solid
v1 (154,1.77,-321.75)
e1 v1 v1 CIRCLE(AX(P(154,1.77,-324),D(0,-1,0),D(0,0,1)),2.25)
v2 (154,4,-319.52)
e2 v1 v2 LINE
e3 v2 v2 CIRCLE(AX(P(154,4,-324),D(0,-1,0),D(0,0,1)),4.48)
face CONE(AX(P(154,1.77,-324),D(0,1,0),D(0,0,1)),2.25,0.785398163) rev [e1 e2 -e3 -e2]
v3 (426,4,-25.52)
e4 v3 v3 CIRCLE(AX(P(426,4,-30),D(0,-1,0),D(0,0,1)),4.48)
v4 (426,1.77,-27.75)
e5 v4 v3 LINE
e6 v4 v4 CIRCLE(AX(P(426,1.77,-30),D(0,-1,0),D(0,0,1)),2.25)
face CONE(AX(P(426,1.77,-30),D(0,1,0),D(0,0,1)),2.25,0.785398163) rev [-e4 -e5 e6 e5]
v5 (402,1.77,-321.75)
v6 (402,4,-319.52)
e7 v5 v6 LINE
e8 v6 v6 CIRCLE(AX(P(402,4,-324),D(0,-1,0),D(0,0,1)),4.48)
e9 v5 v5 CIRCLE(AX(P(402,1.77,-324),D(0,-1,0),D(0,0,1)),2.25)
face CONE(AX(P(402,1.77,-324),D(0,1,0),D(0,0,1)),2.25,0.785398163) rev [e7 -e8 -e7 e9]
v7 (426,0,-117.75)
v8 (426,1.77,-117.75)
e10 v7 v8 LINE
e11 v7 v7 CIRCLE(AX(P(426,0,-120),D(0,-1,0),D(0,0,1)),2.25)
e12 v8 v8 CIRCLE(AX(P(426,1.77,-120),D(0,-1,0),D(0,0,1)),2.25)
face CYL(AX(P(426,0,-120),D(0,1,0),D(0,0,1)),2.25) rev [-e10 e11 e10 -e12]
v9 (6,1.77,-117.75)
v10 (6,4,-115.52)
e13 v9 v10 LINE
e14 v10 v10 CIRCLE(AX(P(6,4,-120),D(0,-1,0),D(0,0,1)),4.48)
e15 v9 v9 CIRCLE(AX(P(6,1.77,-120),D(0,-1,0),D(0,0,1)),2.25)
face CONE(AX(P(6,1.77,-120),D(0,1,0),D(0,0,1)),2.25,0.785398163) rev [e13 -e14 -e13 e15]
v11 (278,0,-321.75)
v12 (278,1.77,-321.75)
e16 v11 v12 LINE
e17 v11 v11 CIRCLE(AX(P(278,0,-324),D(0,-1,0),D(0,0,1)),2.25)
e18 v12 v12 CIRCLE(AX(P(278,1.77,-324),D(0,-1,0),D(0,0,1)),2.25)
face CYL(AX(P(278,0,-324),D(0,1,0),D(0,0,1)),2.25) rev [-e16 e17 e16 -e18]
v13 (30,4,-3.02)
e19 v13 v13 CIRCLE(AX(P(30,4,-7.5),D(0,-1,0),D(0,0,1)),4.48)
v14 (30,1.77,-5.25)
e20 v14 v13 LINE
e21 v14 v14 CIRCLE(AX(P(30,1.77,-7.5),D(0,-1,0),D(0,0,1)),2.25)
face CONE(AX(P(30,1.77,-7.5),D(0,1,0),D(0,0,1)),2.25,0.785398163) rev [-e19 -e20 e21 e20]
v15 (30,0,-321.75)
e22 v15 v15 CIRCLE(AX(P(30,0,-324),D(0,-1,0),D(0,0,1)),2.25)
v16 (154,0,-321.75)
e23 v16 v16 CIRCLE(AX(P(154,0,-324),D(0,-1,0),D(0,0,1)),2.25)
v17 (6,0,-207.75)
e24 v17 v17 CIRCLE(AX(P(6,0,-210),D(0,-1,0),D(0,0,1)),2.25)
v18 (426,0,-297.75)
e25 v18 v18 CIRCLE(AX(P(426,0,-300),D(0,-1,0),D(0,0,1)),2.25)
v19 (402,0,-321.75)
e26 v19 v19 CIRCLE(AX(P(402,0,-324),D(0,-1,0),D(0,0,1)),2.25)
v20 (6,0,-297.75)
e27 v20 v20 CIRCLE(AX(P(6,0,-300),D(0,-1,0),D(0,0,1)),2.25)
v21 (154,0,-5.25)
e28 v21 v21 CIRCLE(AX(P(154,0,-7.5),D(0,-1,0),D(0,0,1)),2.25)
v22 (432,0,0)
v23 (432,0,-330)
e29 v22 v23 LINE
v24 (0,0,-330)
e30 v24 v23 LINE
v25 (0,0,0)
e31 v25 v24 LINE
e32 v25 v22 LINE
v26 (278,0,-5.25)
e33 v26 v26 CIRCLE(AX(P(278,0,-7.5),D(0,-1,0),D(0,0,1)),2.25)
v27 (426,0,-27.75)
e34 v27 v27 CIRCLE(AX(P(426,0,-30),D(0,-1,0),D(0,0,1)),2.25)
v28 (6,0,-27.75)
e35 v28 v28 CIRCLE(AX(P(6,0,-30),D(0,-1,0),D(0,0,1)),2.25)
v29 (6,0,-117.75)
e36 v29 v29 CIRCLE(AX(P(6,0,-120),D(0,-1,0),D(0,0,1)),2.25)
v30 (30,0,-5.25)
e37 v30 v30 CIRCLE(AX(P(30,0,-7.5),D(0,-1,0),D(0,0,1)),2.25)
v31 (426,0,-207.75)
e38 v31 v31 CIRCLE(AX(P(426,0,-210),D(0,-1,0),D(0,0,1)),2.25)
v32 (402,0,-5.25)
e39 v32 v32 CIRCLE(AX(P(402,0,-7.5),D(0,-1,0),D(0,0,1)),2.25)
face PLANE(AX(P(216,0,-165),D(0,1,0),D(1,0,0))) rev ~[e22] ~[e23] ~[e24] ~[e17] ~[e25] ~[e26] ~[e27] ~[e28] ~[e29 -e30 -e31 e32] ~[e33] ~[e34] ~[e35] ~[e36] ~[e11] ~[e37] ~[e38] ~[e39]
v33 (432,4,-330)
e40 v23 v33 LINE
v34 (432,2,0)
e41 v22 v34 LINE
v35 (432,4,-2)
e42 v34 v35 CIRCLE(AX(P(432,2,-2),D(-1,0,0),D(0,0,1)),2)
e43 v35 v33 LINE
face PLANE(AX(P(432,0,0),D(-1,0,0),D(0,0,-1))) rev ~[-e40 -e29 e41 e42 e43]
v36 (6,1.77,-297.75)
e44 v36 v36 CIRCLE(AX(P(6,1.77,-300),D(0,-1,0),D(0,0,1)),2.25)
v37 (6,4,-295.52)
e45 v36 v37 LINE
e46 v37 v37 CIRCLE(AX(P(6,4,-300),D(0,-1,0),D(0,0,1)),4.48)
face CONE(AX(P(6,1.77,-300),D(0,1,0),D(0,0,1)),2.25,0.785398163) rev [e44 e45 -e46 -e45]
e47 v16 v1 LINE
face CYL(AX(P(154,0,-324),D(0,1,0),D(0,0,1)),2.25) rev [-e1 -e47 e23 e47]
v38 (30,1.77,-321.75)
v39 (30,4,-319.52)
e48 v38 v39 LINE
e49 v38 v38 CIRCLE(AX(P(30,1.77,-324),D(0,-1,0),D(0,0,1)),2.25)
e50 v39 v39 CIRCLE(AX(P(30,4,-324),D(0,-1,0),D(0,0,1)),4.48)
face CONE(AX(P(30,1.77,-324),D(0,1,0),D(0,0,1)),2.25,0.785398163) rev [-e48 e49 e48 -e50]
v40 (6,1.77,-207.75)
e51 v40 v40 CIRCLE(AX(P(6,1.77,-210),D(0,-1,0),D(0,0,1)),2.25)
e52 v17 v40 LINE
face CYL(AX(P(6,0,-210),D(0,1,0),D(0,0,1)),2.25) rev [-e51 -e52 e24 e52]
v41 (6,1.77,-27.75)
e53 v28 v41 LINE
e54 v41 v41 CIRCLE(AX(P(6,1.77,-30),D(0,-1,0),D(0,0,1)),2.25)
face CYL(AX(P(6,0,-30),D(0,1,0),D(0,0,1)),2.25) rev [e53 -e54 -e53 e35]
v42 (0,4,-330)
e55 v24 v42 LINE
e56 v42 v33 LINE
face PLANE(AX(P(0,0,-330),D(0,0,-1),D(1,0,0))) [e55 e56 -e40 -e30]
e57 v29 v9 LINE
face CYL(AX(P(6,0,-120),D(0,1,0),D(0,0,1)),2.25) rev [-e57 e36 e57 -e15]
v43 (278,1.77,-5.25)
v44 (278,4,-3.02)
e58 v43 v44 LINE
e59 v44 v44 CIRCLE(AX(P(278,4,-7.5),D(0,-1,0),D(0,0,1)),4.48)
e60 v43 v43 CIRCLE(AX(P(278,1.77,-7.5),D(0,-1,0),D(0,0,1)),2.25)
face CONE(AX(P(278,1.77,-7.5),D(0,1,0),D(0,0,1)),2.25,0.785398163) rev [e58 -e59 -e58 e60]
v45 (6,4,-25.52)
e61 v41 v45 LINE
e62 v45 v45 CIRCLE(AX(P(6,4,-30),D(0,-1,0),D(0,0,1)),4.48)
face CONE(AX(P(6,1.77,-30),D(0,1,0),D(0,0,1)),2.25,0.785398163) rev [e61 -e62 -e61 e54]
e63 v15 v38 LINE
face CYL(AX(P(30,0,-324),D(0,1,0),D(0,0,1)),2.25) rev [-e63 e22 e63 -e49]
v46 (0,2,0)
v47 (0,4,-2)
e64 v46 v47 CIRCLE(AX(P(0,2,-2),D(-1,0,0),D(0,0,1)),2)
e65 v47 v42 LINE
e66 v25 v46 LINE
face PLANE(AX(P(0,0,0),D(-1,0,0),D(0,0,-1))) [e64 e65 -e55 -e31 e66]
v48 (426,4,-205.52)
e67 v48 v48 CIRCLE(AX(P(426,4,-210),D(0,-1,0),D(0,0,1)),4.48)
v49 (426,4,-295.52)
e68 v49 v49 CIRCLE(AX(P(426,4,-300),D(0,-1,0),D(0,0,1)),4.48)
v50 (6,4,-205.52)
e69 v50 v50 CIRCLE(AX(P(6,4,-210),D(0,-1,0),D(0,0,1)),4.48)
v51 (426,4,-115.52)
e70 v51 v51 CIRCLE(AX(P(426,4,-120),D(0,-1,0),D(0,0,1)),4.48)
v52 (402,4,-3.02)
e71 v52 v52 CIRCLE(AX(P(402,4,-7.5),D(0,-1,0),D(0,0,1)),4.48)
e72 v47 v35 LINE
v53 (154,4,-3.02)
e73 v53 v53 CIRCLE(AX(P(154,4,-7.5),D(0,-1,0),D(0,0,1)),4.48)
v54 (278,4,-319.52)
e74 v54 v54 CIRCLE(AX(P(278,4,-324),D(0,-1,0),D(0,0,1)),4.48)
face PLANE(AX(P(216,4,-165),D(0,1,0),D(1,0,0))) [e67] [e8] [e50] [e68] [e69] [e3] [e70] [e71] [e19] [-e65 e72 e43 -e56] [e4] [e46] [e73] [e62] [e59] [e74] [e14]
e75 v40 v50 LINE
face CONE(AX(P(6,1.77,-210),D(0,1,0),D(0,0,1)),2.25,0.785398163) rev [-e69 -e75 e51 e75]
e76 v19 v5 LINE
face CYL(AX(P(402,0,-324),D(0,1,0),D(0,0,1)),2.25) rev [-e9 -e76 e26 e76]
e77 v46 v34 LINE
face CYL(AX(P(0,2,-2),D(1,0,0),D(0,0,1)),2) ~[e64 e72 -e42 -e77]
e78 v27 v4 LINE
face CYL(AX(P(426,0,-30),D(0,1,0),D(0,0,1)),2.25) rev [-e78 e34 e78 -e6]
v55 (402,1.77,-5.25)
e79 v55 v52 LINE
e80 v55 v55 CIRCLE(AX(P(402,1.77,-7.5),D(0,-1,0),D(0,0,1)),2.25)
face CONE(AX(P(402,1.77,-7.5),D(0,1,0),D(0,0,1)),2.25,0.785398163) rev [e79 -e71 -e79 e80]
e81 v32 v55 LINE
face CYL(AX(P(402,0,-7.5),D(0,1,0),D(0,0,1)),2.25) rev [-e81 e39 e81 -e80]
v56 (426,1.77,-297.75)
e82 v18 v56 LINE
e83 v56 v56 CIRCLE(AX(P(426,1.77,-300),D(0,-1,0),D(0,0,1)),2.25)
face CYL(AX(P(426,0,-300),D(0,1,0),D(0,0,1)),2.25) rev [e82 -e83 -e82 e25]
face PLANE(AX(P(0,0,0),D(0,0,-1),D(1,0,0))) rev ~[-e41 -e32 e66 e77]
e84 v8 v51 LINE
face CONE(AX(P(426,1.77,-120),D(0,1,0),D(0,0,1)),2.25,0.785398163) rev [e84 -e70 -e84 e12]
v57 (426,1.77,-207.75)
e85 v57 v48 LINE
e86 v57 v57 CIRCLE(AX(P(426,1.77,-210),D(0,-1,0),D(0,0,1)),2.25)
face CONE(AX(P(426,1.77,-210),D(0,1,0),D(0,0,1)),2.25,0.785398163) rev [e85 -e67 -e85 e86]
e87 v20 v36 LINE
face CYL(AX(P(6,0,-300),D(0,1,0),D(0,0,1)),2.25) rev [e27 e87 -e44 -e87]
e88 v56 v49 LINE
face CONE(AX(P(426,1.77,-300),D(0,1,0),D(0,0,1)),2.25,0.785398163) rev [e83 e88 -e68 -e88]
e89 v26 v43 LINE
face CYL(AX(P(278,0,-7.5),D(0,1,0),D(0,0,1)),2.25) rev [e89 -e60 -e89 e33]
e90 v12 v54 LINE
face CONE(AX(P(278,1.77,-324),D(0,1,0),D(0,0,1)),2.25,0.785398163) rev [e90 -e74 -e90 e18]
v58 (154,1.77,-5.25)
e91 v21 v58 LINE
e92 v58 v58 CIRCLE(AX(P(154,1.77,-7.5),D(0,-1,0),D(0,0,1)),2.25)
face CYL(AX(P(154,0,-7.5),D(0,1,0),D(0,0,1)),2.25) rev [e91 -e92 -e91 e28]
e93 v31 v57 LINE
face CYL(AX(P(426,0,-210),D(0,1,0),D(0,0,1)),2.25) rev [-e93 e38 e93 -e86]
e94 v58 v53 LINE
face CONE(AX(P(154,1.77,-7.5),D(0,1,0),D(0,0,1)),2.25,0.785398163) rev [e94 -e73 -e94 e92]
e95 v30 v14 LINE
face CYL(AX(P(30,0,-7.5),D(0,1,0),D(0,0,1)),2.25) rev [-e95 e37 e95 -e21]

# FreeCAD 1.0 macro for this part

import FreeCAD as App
import Part
import Sketcher
Q = App.Units.Quantity


def edges_at(feature, points):
    """Names of the edges that pass closest to the given points."""
    edges = feature.Shape.Edges
    near = lambda p: min(range(len(edges)), key=lambda i: edges[i].distToShape(Part.Vertex(*p))[0])
    return sorted({f"Edge{near(p) + 1}" for p in points})

doc = App.newDocument("Part")
body = doc.addObject("PartDesign::Body", "Body")

# Sketch on XZ plane
sketch1 = body.newObject("Sketcher::SketchObject", "Sketch")
sketch1.AttachmentSupport = (doc.getObject("XZ_Plane"), [""])
sketch1.MapMode = "FlatFace"
sketch1.addGeometry([
    Part.LineSegment(App.Vector(0, -330, 0), App.Vector(0, 0, 0)),
    Part.LineSegment(App.Vector(0, 0, 0), App.Vector(432, 0, 0)),
    Part.LineSegment(App.Vector(432, 0, 0), App.Vector(432, -330, 0)),
    Part.LineSegment(App.Vector(432, -330, 0), App.Vector(0, -330, 0)),
], False)
sketch1.addConstraint([
    Sketcher.Constraint("Coincident", 0, 2, 1, 1),
    Sketcher.Constraint("Coincident", 1, 2, 2, 1),
    Sketcher.Constraint("Coincident", 2, 2, 3, 1),
    Sketcher.Constraint("Coincident", 3, 2, 0, 1),
    Sketcher.Constraint("Vertical", 0),
    Sketcher.Constraint("Horizontal", 1),
    Sketcher.Constraint("Vertical", 2),
    Sketcher.Constraint("Horizontal", 3),
    Sketcher.Constraint("Coincident", 0, 2, -1, 1),
    Sketcher.Constraint("DistanceX", 1, 1, 1, 2, 432.0),
    Sketcher.Constraint("DistanceY", 0, 1, 0, 2, 330.0),
])
pad1 = body.newObject("PartDesign::Pad", "Pad")
pad1.Profile = sketch1
pad1.Length = 4
pad1.Reversed = True

# Sketch on YZ plane
sketch2 = body.newObject("Sketcher::SketchObject", "Sketch001")
sketch2.AttachmentSupport = (doc.getObject("YZ_Plane"), [""])
sketch2.MapMode = "FlatFace"
sketch2.AttachmentOffset = App.Placement(App.Vector(0, 0, 6), App.Rotation())
sketch2.addGeometry([
    Part.LineSegment(App.Vector(0, -300, 0), App.Vector(4, -300, 0)),  # 0
    Part.LineSegment(App.Vector(4, -300, 0), App.Vector(4, -295.5, 0)),  # 1
    Part.LineSegment(App.Vector(4, -295.5, 0), App.Vector(1.8, -297.8, 0)),  # 2
    Part.LineSegment(App.Vector(1.8, -297.8, 0), App.Vector(0, -297.8, 0)),  # 3
    Part.LineSegment(App.Vector(0, -297.8, 0), App.Vector(0, -300, 0)),  # 4
], False)
sketch2.addGeometry(Part.LineSegment(App.Vector(4, -300, 0), App.Vector(0, -300, 0)), True)  # axis
sketch2.addConstraint([
    Sketcher.Constraint("Coincident", 0, 2, 1, 1),
    Sketcher.Constraint("Coincident", 1, 2, 2, 1),
    Sketcher.Constraint("Coincident", 2, 2, 3, 1),
    Sketcher.Constraint("Coincident", 3, 2, 4, 1),
    Sketcher.Constraint("Coincident", 4, 2, 0, 1),
    Sketcher.Constraint("Horizontal", 0),
    Sketcher.Constraint("Vertical", 1),
    Sketcher.Constraint("Horizontal", 3),
    Sketcher.Constraint("Vertical", 4),
    Sketcher.Constraint("Horizontal", 5),
    Sketcher.Constraint("Coincident", 5, 1, 0, 2),
    Sketcher.Constraint("PointOnObject", 3, 2, -2),
    Sketcher.Constraint("PointOnObject", 5, 2, -2),
    Sketcher.Constraint("DistanceX", 0, 1, 0, 2, 4.0),
    Sketcher.Constraint("Angle", 2, Q("-135 deg")),
    Sketcher.Constraint("DistanceY", 0, 2, -1, 1, 300.0),
    Sketcher.Constraint("DistanceX", 3, 2, 3, 1, 1.77),
    Sketcher.Constraint("DistanceY", 1, 1, 1, 2, 4.48),
])
groove = body.newObject("PartDesign::Groove", "Groove")
groove.Profile = sketch2
groove.ReferenceAxis = (sketch2, ["Axis0"])
groove.Angle = 360
doc.recompute()

linearpattern = body.newObject("PartDesign::LinearPattern", "LinearPattern")
linearpattern.Originals = [groove]
linearpattern.Direction = (doc.getObject("Z_Axis"), [""])
linearpattern.Mode = "offset"
linearpattern.Offset = 90
linearpattern.Occurrences = 2
body.Tip = linearpattern
doc.recompute()

linearpattern2 = body.newObject("PartDesign::LinearPattern", "LinearPattern001")
linearpattern2.Originals = [groove]
linearpattern2.Direction = (doc.getObject("Z_Axis"), [""])
linearpattern2.Mode = "offset"
linearpattern2.Offset = 180
linearpattern2.Occurrences = 2
body.Tip = linearpattern2
doc.recompute()

linearpattern3 = body.newObject("PartDesign::LinearPattern", "LinearPattern002")
linearpattern3.Originals = [groove]
linearpattern3.Direction = (doc.getObject("Z_Axis"), [""])
linearpattern3.Mode = "offset"
linearpattern3.Offset = 270
linearpattern3.Occurrences = 2
body.Tip = linearpattern3
doc.recompute()

datumline = body.newObject("PartDesign::Line", "DatumLine")
datumline.Placement = App.Placement(App.Vector(0, 0, 0), App.Rotation(App.Vector(0, 0, 1), App.Vector(0.081776467, 0, 0.996650696)))
linearpattern4 = body.newObject("PartDesign::LinearPattern", "LinearPattern003")
linearpattern4.Originals = [groove]
linearpattern4.Direction = (datumline, [""])
linearpattern4.Mode = "offset"
linearpattern4.Offset = 293.482964
linearpattern4.Occurrences = 2
body.Tip = linearpattern4
doc.recompute()

datumline2 = body.newObject("PartDesign::Line", "DatumLine001")
datumline2.Placement = App.Placement(App.Vector(0, 0, 0), App.Rotation(App.Vector(0, 0, 1), App.Vector(0.451479247, 0, 0.89228162)))
linearpattern5 = body.newObject("PartDesign::LinearPattern", "LinearPattern004")
linearpattern5.Originals = [groove]
linearpattern5.Direction = (datumline2, [""])
linearpattern5.Mode = "offset"
linearpattern5.Offset = 327.811302
linearpattern5.Occurrences = 2
body.Tip = linearpattern5
doc.recompute()

datumline3 = body.newObject("PartDesign::Line", "DatumLine002")
datumline3.Placement = App.Placement(App.Vector(0, 0, 0), App.Rotation(App.Vector(0, 0, 1), App.Vector(0.680979079, 0, 0.73230287)))
linearpattern6 = body.newObject("PartDesign::LinearPattern", "LinearPattern005")
linearpattern6.Originals = [groove]
linearpattern6.Direction = (datumline3, [""])
linearpattern6.Mode = "offset"
linearpattern6.Offset = 399.424899
linearpattern6.Occurrences = 2
body.Tip = linearpattern6
doc.recompute()

datumline4 = body.newObject("PartDesign::Line", "DatumLine003")
datumline4.Placement = App.Placement(App.Vector(0, 0, 0), App.Rotation(App.Vector(0, 0, 1), App.Vector(0.804366062, 0, 0.594134023)))
linearpattern7 = body.newObject("PartDesign::LinearPattern", "LinearPattern006")
linearpattern7.Originals = [groove]
linearpattern7.Direction = (datumline4, [""])
linearpattern7.Mode = "offset"
linearpattern7.Offset = 492.313162
linearpattern7.Occurrences = 2
body.Tip = linearpattern7
doc.recompute()

datumline5 = body.newObject("PartDesign::Line", "DatumLine004")
datumline5.Placement = App.Placement(App.Vector(0, 0, 0), App.Rotation(App.Vector(0, 0, 1), App.Vector(0.841178475, 0, 0.540757591)))
linearpattern8 = body.newObject("PartDesign::LinearPattern", "LinearPattern007")
linearpattern8.Originals = [groove]
linearpattern8.Direction = (datumline5, [""])
linearpattern8.Mode = "offset"
linearpattern8.Offset = 499.299509
linearpattern8.Occurrences = 2
body.Tip = linearpattern8
doc.recompute()

datumline6 = body.newObject("PartDesign::Line", "DatumLine005")
datumline6.Placement = App.Placement(App.Vector(0, 0, 0), App.Rotation(App.Vector(0, 0, 1), App.Vector(0.91914503, 0, 0.393919299)))
linearpattern9 = body.newObject("PartDesign::LinearPattern", "LinearPattern008")
linearpattern9.Originals = [groove]
linearpattern9.Direction = (datumline6, [""])
linearpattern9.Mode = "offset"
linearpattern9.Offset = 456.946386
linearpattern9.Occurrences = 2
body.Tip = linearpattern9
doc.recompute()

datumline7 = body.newObject("PartDesign::Line", "DatumLine006")
datumline7.Placement = App.Placement(App.Vector(0, 0, 0), App.Rotation(App.Vector(0, 0, 1), App.Vector(0.977802414, 0, 0.209529089)))
linearpattern10 = body.newObject("PartDesign::LinearPattern", "LinearPattern009")
linearpattern10.Originals = [groove]
linearpattern10.Direction = (datumline7, [""])
linearpattern10.Mode = "offset"
linearpattern10.Offset = 429.534632
linearpattern10.Occurrences = 2
body.Tip = linearpattern10
doc.recompute()

linearpattern11 = body.newObject("PartDesign::LinearPattern", "LinearPattern010")
linearpattern11.Originals = [groove]
linearpattern11.Direction = (doc.getObject("X_Axis"), [""])
linearpattern11.Mode = "offset"
linearpattern11.Offset = 420
linearpattern11.Occurrences = 2
body.Tip = linearpattern11
doc.recompute()

datumline8 = body.newObject("PartDesign::Line", "DatumLine007")
datumline8.Placement = App.Placement(App.Vector(0, 0, 0), App.Rotation(App.Vector(0, 0, 1), App.Vector(0.998168497, 0, -0.06049506)))
linearpattern12 = body.newObject("PartDesign::LinearPattern", "LinearPattern011")
linearpattern12.Originals = [groove]
linearpattern12.Direction = (datumline8, [""])
linearpattern12.Mode = "offset"
linearpattern12.Offset = 396.726606
linearpattern12.Occurrences = 2
body.Tip = linearpattern12
doc.recompute()

datumline9 = body.newObject("PartDesign::Line", "DatumLine008")
datumline9.Placement = App.Placement(App.Vector(0, 0, 0), App.Rotation(App.Vector(0, 0, 1), App.Vector(0.99612985, 0, -0.08789381)))
linearpattern13 = body.newObject("PartDesign::LinearPattern", "LinearPattern012")
linearpattern13.Originals = [groove]
linearpattern13.Direction = (datumline9, [""])
linearpattern13.Mode = "offset"
linearpattern13.Offset = 273.056771
linearpattern13.Occurrences = 2
body.Tip = linearpattern13
doc.recompute()

datumline10 = body.newObject("PartDesign::Line", "DatumLine009")
datumline10.Placement = App.Placement(App.Vector(0, 0, 0), App.Rotation(App.Vector(0, 0, 1), App.Vector(0.987105478, 0, -0.160071159)))
linearpattern14 = body.newObject("PartDesign::LinearPattern", "LinearPattern013")
linearpattern14.Originals = [groove]
linearpattern14.Direction = (datumline10, [""])
linearpattern14.Mode = "offset"
linearpattern14.Offset = 149.933319
linearpattern14.Occurrences = 2
body.Tip = linearpattern14
doc.recompute()

datumline11 = body.newObject("PartDesign::Line", "DatumLine010")
datumline11.Placement = App.Placement(App.Vector(0, 0, 0), App.Rotation(App.Vector(0, 0, 1), App.Vector(0.707106781, 0, -0.707106781)))
linearpattern15 = body.newObject("PartDesign::LinearPattern", "LinearPattern014")
linearpattern15.Originals = [groove]
linearpattern15.Direction = (datumline11, [""])
linearpattern15.Mode = "offset"
linearpattern15.Offset = 33.941125
linearpattern15.Occurrences = 2
body.Tip = linearpattern15
doc.recompute()

fillet = body.newObject("PartDesign::Fillet", "Fillet")
fillet.Base = (linearpattern15, edges_at(linearpattern15, [(216, 4, 0)]))
fillet.Radius = 2

doc.recompute()
